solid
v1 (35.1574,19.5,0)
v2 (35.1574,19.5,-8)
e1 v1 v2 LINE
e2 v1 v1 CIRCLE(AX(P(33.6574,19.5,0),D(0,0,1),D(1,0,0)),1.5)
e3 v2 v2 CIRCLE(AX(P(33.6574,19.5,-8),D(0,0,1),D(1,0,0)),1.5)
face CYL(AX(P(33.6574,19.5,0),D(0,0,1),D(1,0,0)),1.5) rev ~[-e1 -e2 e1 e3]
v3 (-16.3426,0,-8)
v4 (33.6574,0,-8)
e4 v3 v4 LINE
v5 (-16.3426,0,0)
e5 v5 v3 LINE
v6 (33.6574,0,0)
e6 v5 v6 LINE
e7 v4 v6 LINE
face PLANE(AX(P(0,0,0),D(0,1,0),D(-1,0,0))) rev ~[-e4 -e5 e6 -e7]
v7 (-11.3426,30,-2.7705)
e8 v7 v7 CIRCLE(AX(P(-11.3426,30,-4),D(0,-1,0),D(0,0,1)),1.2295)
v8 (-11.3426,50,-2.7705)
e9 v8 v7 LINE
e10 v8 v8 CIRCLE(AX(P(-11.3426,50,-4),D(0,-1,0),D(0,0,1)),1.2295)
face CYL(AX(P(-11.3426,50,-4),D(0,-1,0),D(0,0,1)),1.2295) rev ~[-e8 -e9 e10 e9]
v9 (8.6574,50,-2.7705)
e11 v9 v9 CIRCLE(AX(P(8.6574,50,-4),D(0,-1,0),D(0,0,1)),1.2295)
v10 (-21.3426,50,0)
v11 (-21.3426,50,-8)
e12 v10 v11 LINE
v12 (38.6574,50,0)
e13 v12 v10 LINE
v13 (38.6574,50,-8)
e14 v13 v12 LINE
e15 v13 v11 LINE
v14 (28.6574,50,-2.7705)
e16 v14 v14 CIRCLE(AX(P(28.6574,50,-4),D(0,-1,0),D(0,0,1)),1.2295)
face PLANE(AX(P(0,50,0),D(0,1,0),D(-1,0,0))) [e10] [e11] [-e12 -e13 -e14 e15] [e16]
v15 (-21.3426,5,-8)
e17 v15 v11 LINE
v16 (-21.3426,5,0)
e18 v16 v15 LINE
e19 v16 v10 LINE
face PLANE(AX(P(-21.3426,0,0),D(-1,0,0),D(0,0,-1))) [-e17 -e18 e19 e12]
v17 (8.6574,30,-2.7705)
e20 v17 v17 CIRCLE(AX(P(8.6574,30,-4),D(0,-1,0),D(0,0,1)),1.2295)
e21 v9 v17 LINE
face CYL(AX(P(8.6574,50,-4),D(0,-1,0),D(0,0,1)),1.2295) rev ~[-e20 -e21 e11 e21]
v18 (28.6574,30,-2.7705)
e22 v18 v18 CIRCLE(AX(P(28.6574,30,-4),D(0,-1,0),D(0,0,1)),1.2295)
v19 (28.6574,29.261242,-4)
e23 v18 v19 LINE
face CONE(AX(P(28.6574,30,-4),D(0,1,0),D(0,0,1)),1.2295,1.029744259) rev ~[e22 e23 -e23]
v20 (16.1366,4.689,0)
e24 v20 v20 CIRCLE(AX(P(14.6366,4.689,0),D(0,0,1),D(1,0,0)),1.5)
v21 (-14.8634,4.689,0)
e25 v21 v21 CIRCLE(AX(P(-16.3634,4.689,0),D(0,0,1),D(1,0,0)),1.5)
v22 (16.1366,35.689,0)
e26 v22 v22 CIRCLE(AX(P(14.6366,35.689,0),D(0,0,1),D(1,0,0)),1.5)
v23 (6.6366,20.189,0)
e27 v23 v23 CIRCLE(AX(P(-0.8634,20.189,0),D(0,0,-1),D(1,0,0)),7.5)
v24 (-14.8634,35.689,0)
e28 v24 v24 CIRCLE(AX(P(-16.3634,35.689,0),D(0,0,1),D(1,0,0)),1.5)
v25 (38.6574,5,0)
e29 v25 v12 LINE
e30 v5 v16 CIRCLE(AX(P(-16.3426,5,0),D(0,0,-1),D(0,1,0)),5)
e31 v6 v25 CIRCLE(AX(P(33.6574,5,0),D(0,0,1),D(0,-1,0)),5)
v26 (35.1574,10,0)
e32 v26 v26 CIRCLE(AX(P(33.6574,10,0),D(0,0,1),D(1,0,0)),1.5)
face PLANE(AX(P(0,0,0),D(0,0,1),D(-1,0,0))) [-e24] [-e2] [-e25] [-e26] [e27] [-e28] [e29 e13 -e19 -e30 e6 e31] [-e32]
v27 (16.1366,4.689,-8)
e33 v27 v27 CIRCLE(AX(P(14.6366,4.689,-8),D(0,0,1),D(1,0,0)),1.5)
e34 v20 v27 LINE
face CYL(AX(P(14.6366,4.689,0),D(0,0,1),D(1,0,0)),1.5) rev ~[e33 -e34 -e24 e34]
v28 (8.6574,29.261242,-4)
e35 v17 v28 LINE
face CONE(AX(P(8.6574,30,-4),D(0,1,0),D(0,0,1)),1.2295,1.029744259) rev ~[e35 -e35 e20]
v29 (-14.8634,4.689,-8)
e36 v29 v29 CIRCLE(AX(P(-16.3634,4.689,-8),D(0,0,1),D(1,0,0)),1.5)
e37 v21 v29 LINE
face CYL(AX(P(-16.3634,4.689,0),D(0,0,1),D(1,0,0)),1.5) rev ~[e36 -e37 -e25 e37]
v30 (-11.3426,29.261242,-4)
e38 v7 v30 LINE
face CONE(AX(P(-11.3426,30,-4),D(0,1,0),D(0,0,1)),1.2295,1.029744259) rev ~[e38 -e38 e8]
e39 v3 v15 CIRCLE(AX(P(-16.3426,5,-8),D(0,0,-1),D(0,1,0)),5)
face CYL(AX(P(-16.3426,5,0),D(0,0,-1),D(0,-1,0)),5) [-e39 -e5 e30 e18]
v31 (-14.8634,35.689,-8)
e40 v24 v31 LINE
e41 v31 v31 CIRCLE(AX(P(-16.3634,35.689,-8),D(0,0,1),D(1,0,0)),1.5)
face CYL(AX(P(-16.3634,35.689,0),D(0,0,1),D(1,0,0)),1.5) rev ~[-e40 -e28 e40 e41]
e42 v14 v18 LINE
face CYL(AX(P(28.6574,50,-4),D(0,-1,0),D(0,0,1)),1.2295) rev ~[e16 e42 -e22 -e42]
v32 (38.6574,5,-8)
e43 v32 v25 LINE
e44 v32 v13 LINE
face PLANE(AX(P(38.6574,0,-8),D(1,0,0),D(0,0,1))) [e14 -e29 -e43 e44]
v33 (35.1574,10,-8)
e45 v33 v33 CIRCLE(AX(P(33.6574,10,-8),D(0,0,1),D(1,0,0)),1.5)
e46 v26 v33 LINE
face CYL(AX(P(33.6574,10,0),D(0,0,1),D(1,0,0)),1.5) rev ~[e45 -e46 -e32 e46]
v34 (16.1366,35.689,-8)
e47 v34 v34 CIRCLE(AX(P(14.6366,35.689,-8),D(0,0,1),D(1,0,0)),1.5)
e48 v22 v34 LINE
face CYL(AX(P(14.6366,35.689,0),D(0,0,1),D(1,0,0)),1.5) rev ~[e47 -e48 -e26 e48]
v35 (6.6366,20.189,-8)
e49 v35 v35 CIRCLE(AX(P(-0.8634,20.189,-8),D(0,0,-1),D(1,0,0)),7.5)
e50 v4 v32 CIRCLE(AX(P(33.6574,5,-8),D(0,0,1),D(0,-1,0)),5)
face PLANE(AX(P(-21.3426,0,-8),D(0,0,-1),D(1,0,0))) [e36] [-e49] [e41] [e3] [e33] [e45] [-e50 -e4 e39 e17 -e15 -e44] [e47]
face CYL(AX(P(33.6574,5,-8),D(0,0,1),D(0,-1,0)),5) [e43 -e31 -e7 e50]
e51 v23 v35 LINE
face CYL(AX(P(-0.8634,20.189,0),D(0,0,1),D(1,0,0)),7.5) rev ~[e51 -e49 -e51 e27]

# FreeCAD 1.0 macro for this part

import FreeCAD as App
import Part
import Sketcher

V = App.Vector


def edges_at(feature, points):
    """Names of the edges that pass closest to the given points."""
    edges = feature.Shape.Edges
    near = lambda p: min(range(len(edges)), key=lambda i: edges[i].distToShape(Part.Vertex(*p))[0])
    return sorted({f"Edge{near(p) + 1}" for p in points})


def add_polygon(sketch, points):
    """Adds a closed chain of lines whose ends are joined by coincident constraints."""
    first, n = sketch.GeometryCount, len(points)
    for a, b in zip(points, points[1:] + points[:1]):
        sketch.addGeometry(Part.LineSegment(App.Vector(*a, 0), App.Vector(*b, 0)), False)
    for i in range(n):
        sketch.addConstraint(Sketcher.Constraint("Coincident", first + i, 2, first + (i + 1) % n, 1))

doc = App.newDocument("Part")
params = doc.addObject("Spreadsheet::Sheet", "Params")
for row, (alias, value) in enumerate([
    ("sketch1_width", "60 mm"),
    ("sketch1_height", "8 mm"),
    ("pad1_length", "50 mm"),
    ("sketch2_diameter", "3 mm"),
    ("sketch2_diameter2", "15 mm"),
    ("pocket1_length", "10 mm"),
    ("fillet_radius", "5 mm"),
    ("hole_diameter", "2.459 mm"),
    ("hole_depth", "20 mm"),
], start=1):
    params.set(f"A{row}", alias)
    params.set(f"B{row}", "=" + value)
    params.setAlias(f"B{row}", alias)

body = doc.addObject("PartDesign::Body", "Body")

sketch1 = body.newObject("Sketcher::SketchObject", "Sketch")
sketch1.AttachmentSupport = (doc.getObject("XZ_Plane"), [""])
sketch1.MapMode = "FlatFace"
add_polygon(sketch1, [(-21, 0), (39, 0), (39, -8), (-21, -8)])
sketch1.addConstraint([
    Sketcher.Constraint("Horizontal", 0),
    Sketcher.Constraint("Vertical", 1),
    Sketcher.Constraint("Horizontal", 2),
    Sketcher.Constraint("Vertical", 3),
    Sketcher.Constraint("PointOnObject", 0, 2, -1),
    Sketcher.Constraint("DistanceX", 0, 1, 0, 2, 60.0),
    Sketcher.Constraint("DistanceY", 1, 2, 1, 1, 8.0),
    Sketcher.Constraint("DistanceX", -1, 1, 0, 2, 38.6574),
])
sketch1.setExpression("Constraints[9]", "Params.sketch1_width")
sketch1.setExpression("Constraints[10]", "Params.sketch1_height")
pad1 = body.newObject("PartDesign::Pad", "Pad")
pad1.Profile = sketch1
pad1.setExpression("Length", "Params.pad1_length")
pad1.Reversed = True

sketch2 = body.newObject("Sketcher::SketchObject", "Sketch001")
sketch2.AttachmentSupport = (doc.getObject("XY_Plane"), [""])
sketch2.MapMode = "FlatFace"
sketch2.addGeometry([
    Part.Circle(V(-0.9, 20.2, 0), V(0, 0, 1), 7.5),
    Part.Circle(V(-16.4, 35.7, 0), V(0, 0, 1), 1.5),
    Part.Circle(V(14.6, 4.7, 0), V(0, 0, 1), 1.5),
    Part.Circle(V(14.6, 35.7, 0), V(0, 0, 1), 1.5),
    Part.Circle(V(-16.4, 4.7, 0), V(0, 0, 1), 1.5),
    Part.Circle(V(33.7, 10, 0), V(0, 0, 1), 1.5),
    Part.Circle(V(33.7, 19.5, 0), V(0, 0, 1), 1.5),
], False)
sketch2.addConstraint([
    Sketcher.Constraint("Equal", 1, 2),
    Sketcher.Constraint("Equal", 2, 3),
    Sketcher.Constraint("Equal", 3, 4),
    Sketcher.Constraint("Equal", 4, 5),
    Sketcher.Constraint("Equal", 5, 6),
    Sketcher.Constraint("Horizontal", 1, 3, 3, 3),
    Sketcher.Constraint("Horizontal", 2, 3, 4, 3),
    Sketcher.Constraint("Vertical", 2, 3, 3, 3),
    Sketcher.Constraint("Vertical", 1, 3, 4, 3),
    Sketcher.Constraint("Vertical", 5, 3, 6, 3),
    Sketcher.Constraint("Diameter", 1, 3.0),
    Sketcher.Constraint("Diameter", 0, 15.0),
    Sketcher.Constraint("DistanceY", -1, 1, 5, 3, 10.0),
    Sketcher.Constraint("DistanceY", 5, 3, 6, 3, 9.5),
    Sketcher.Constraint("DistanceX", 1, 3, 2, 3, 31.0),
    Sketcher.Constraint("DistanceY", 2, 3, 1, 3, 31.0),
    Sketcher.Constraint("DistanceX", 1, 3, 0, 3, 15.5),
    Sketcher.Constraint("DistanceY", 0, 3, 1, 3, 15.5),
    Sketcher.Constraint("DistanceY", -1, 1, 0, 3, 20.189),
    Sketcher.Constraint("DistanceX", 0, 3, -1, 1, 0.8634),
    Sketcher.Constraint("DistanceX", -1, 1, 5, 3, 33.6574),
])
sketch2.setExpression("Constraints[10]", "Params.sketch2_diameter")
sketch2.setExpression("Constraints[11]", "Params.sketch2_diameter2")
pocket1 = body.newObject("PartDesign::Pocket", "Pocket")
pocket1.Profile = sketch2
pocket1.setExpression("Length", "Params.pocket1_length")
doc.recompute()

fillet = body.newObject("PartDesign::Fillet", "Fillet")
fillet.Base = (pocket1, edges_at(pocket1, [(38.657, 0, -4), (-21.343, 0, -4)]))
fillet.setExpression("Radius", "Params.fillet_radius")

sketch3 = body.newObject("Sketcher::SketchObject", "Sketch002")
sketch3.AttachmentSupport = (doc.getObject("XZ_Plane"), [""])
sketch3.MapMode = "FlatFace"
sketch3.AttachmentOffset = App.Placement(V(0, 0, -50), App.Rotation())
sketch3.addGeometry([
    Part.Circle(V(-11.3, -4, 0), V(0, 0, 1), 1.2),
    Part.Circle(V(8.7, -4, 0), V(0, 0, 1), 1.2),
    Part.Circle(V(28.7, -4, 0), V(0, 0, 1), 1.2),
], False)
sketch3.addConstraint([
    Sketcher.Constraint("Equal", 0, 1),
    Sketcher.Constraint("Equal", 1, 2),
    Sketcher.Constraint("Horizontal", 0, 3, 1, 3),
    Sketcher.Constraint("Horizontal", 1, 3, 2, 3),
    Sketcher.Constraint("Diameter", 0, 2.459),
    Sketcher.Constraint("DistanceY", 0, 3, -1, 1, 4.0),
    Sketcher.Constraint("DistanceX", 0, 3, 1, 3, 20.0),
    Sketcher.Constraint("DistanceX", 1, 3, 2, 3, 20.0),
    Sketcher.Constraint("DistanceX", 0, 3, -1, 1, 11.3426),
])
doc.recompute()
hole = body.newObject("PartDesign::Hole", "Hole")
hole.Profile = sketch3
hole.ThreadType = "None"
hole.setExpression("Diameter", "Params.hole_diameter")
hole.DepthType = "Dimension"
hole.setExpression("Depth", "Params.hole_depth")
hole.DrillPoint = "Angled"
hole.DrillPointAngle = 118
hole.Reversed = True

doc.recompute()
